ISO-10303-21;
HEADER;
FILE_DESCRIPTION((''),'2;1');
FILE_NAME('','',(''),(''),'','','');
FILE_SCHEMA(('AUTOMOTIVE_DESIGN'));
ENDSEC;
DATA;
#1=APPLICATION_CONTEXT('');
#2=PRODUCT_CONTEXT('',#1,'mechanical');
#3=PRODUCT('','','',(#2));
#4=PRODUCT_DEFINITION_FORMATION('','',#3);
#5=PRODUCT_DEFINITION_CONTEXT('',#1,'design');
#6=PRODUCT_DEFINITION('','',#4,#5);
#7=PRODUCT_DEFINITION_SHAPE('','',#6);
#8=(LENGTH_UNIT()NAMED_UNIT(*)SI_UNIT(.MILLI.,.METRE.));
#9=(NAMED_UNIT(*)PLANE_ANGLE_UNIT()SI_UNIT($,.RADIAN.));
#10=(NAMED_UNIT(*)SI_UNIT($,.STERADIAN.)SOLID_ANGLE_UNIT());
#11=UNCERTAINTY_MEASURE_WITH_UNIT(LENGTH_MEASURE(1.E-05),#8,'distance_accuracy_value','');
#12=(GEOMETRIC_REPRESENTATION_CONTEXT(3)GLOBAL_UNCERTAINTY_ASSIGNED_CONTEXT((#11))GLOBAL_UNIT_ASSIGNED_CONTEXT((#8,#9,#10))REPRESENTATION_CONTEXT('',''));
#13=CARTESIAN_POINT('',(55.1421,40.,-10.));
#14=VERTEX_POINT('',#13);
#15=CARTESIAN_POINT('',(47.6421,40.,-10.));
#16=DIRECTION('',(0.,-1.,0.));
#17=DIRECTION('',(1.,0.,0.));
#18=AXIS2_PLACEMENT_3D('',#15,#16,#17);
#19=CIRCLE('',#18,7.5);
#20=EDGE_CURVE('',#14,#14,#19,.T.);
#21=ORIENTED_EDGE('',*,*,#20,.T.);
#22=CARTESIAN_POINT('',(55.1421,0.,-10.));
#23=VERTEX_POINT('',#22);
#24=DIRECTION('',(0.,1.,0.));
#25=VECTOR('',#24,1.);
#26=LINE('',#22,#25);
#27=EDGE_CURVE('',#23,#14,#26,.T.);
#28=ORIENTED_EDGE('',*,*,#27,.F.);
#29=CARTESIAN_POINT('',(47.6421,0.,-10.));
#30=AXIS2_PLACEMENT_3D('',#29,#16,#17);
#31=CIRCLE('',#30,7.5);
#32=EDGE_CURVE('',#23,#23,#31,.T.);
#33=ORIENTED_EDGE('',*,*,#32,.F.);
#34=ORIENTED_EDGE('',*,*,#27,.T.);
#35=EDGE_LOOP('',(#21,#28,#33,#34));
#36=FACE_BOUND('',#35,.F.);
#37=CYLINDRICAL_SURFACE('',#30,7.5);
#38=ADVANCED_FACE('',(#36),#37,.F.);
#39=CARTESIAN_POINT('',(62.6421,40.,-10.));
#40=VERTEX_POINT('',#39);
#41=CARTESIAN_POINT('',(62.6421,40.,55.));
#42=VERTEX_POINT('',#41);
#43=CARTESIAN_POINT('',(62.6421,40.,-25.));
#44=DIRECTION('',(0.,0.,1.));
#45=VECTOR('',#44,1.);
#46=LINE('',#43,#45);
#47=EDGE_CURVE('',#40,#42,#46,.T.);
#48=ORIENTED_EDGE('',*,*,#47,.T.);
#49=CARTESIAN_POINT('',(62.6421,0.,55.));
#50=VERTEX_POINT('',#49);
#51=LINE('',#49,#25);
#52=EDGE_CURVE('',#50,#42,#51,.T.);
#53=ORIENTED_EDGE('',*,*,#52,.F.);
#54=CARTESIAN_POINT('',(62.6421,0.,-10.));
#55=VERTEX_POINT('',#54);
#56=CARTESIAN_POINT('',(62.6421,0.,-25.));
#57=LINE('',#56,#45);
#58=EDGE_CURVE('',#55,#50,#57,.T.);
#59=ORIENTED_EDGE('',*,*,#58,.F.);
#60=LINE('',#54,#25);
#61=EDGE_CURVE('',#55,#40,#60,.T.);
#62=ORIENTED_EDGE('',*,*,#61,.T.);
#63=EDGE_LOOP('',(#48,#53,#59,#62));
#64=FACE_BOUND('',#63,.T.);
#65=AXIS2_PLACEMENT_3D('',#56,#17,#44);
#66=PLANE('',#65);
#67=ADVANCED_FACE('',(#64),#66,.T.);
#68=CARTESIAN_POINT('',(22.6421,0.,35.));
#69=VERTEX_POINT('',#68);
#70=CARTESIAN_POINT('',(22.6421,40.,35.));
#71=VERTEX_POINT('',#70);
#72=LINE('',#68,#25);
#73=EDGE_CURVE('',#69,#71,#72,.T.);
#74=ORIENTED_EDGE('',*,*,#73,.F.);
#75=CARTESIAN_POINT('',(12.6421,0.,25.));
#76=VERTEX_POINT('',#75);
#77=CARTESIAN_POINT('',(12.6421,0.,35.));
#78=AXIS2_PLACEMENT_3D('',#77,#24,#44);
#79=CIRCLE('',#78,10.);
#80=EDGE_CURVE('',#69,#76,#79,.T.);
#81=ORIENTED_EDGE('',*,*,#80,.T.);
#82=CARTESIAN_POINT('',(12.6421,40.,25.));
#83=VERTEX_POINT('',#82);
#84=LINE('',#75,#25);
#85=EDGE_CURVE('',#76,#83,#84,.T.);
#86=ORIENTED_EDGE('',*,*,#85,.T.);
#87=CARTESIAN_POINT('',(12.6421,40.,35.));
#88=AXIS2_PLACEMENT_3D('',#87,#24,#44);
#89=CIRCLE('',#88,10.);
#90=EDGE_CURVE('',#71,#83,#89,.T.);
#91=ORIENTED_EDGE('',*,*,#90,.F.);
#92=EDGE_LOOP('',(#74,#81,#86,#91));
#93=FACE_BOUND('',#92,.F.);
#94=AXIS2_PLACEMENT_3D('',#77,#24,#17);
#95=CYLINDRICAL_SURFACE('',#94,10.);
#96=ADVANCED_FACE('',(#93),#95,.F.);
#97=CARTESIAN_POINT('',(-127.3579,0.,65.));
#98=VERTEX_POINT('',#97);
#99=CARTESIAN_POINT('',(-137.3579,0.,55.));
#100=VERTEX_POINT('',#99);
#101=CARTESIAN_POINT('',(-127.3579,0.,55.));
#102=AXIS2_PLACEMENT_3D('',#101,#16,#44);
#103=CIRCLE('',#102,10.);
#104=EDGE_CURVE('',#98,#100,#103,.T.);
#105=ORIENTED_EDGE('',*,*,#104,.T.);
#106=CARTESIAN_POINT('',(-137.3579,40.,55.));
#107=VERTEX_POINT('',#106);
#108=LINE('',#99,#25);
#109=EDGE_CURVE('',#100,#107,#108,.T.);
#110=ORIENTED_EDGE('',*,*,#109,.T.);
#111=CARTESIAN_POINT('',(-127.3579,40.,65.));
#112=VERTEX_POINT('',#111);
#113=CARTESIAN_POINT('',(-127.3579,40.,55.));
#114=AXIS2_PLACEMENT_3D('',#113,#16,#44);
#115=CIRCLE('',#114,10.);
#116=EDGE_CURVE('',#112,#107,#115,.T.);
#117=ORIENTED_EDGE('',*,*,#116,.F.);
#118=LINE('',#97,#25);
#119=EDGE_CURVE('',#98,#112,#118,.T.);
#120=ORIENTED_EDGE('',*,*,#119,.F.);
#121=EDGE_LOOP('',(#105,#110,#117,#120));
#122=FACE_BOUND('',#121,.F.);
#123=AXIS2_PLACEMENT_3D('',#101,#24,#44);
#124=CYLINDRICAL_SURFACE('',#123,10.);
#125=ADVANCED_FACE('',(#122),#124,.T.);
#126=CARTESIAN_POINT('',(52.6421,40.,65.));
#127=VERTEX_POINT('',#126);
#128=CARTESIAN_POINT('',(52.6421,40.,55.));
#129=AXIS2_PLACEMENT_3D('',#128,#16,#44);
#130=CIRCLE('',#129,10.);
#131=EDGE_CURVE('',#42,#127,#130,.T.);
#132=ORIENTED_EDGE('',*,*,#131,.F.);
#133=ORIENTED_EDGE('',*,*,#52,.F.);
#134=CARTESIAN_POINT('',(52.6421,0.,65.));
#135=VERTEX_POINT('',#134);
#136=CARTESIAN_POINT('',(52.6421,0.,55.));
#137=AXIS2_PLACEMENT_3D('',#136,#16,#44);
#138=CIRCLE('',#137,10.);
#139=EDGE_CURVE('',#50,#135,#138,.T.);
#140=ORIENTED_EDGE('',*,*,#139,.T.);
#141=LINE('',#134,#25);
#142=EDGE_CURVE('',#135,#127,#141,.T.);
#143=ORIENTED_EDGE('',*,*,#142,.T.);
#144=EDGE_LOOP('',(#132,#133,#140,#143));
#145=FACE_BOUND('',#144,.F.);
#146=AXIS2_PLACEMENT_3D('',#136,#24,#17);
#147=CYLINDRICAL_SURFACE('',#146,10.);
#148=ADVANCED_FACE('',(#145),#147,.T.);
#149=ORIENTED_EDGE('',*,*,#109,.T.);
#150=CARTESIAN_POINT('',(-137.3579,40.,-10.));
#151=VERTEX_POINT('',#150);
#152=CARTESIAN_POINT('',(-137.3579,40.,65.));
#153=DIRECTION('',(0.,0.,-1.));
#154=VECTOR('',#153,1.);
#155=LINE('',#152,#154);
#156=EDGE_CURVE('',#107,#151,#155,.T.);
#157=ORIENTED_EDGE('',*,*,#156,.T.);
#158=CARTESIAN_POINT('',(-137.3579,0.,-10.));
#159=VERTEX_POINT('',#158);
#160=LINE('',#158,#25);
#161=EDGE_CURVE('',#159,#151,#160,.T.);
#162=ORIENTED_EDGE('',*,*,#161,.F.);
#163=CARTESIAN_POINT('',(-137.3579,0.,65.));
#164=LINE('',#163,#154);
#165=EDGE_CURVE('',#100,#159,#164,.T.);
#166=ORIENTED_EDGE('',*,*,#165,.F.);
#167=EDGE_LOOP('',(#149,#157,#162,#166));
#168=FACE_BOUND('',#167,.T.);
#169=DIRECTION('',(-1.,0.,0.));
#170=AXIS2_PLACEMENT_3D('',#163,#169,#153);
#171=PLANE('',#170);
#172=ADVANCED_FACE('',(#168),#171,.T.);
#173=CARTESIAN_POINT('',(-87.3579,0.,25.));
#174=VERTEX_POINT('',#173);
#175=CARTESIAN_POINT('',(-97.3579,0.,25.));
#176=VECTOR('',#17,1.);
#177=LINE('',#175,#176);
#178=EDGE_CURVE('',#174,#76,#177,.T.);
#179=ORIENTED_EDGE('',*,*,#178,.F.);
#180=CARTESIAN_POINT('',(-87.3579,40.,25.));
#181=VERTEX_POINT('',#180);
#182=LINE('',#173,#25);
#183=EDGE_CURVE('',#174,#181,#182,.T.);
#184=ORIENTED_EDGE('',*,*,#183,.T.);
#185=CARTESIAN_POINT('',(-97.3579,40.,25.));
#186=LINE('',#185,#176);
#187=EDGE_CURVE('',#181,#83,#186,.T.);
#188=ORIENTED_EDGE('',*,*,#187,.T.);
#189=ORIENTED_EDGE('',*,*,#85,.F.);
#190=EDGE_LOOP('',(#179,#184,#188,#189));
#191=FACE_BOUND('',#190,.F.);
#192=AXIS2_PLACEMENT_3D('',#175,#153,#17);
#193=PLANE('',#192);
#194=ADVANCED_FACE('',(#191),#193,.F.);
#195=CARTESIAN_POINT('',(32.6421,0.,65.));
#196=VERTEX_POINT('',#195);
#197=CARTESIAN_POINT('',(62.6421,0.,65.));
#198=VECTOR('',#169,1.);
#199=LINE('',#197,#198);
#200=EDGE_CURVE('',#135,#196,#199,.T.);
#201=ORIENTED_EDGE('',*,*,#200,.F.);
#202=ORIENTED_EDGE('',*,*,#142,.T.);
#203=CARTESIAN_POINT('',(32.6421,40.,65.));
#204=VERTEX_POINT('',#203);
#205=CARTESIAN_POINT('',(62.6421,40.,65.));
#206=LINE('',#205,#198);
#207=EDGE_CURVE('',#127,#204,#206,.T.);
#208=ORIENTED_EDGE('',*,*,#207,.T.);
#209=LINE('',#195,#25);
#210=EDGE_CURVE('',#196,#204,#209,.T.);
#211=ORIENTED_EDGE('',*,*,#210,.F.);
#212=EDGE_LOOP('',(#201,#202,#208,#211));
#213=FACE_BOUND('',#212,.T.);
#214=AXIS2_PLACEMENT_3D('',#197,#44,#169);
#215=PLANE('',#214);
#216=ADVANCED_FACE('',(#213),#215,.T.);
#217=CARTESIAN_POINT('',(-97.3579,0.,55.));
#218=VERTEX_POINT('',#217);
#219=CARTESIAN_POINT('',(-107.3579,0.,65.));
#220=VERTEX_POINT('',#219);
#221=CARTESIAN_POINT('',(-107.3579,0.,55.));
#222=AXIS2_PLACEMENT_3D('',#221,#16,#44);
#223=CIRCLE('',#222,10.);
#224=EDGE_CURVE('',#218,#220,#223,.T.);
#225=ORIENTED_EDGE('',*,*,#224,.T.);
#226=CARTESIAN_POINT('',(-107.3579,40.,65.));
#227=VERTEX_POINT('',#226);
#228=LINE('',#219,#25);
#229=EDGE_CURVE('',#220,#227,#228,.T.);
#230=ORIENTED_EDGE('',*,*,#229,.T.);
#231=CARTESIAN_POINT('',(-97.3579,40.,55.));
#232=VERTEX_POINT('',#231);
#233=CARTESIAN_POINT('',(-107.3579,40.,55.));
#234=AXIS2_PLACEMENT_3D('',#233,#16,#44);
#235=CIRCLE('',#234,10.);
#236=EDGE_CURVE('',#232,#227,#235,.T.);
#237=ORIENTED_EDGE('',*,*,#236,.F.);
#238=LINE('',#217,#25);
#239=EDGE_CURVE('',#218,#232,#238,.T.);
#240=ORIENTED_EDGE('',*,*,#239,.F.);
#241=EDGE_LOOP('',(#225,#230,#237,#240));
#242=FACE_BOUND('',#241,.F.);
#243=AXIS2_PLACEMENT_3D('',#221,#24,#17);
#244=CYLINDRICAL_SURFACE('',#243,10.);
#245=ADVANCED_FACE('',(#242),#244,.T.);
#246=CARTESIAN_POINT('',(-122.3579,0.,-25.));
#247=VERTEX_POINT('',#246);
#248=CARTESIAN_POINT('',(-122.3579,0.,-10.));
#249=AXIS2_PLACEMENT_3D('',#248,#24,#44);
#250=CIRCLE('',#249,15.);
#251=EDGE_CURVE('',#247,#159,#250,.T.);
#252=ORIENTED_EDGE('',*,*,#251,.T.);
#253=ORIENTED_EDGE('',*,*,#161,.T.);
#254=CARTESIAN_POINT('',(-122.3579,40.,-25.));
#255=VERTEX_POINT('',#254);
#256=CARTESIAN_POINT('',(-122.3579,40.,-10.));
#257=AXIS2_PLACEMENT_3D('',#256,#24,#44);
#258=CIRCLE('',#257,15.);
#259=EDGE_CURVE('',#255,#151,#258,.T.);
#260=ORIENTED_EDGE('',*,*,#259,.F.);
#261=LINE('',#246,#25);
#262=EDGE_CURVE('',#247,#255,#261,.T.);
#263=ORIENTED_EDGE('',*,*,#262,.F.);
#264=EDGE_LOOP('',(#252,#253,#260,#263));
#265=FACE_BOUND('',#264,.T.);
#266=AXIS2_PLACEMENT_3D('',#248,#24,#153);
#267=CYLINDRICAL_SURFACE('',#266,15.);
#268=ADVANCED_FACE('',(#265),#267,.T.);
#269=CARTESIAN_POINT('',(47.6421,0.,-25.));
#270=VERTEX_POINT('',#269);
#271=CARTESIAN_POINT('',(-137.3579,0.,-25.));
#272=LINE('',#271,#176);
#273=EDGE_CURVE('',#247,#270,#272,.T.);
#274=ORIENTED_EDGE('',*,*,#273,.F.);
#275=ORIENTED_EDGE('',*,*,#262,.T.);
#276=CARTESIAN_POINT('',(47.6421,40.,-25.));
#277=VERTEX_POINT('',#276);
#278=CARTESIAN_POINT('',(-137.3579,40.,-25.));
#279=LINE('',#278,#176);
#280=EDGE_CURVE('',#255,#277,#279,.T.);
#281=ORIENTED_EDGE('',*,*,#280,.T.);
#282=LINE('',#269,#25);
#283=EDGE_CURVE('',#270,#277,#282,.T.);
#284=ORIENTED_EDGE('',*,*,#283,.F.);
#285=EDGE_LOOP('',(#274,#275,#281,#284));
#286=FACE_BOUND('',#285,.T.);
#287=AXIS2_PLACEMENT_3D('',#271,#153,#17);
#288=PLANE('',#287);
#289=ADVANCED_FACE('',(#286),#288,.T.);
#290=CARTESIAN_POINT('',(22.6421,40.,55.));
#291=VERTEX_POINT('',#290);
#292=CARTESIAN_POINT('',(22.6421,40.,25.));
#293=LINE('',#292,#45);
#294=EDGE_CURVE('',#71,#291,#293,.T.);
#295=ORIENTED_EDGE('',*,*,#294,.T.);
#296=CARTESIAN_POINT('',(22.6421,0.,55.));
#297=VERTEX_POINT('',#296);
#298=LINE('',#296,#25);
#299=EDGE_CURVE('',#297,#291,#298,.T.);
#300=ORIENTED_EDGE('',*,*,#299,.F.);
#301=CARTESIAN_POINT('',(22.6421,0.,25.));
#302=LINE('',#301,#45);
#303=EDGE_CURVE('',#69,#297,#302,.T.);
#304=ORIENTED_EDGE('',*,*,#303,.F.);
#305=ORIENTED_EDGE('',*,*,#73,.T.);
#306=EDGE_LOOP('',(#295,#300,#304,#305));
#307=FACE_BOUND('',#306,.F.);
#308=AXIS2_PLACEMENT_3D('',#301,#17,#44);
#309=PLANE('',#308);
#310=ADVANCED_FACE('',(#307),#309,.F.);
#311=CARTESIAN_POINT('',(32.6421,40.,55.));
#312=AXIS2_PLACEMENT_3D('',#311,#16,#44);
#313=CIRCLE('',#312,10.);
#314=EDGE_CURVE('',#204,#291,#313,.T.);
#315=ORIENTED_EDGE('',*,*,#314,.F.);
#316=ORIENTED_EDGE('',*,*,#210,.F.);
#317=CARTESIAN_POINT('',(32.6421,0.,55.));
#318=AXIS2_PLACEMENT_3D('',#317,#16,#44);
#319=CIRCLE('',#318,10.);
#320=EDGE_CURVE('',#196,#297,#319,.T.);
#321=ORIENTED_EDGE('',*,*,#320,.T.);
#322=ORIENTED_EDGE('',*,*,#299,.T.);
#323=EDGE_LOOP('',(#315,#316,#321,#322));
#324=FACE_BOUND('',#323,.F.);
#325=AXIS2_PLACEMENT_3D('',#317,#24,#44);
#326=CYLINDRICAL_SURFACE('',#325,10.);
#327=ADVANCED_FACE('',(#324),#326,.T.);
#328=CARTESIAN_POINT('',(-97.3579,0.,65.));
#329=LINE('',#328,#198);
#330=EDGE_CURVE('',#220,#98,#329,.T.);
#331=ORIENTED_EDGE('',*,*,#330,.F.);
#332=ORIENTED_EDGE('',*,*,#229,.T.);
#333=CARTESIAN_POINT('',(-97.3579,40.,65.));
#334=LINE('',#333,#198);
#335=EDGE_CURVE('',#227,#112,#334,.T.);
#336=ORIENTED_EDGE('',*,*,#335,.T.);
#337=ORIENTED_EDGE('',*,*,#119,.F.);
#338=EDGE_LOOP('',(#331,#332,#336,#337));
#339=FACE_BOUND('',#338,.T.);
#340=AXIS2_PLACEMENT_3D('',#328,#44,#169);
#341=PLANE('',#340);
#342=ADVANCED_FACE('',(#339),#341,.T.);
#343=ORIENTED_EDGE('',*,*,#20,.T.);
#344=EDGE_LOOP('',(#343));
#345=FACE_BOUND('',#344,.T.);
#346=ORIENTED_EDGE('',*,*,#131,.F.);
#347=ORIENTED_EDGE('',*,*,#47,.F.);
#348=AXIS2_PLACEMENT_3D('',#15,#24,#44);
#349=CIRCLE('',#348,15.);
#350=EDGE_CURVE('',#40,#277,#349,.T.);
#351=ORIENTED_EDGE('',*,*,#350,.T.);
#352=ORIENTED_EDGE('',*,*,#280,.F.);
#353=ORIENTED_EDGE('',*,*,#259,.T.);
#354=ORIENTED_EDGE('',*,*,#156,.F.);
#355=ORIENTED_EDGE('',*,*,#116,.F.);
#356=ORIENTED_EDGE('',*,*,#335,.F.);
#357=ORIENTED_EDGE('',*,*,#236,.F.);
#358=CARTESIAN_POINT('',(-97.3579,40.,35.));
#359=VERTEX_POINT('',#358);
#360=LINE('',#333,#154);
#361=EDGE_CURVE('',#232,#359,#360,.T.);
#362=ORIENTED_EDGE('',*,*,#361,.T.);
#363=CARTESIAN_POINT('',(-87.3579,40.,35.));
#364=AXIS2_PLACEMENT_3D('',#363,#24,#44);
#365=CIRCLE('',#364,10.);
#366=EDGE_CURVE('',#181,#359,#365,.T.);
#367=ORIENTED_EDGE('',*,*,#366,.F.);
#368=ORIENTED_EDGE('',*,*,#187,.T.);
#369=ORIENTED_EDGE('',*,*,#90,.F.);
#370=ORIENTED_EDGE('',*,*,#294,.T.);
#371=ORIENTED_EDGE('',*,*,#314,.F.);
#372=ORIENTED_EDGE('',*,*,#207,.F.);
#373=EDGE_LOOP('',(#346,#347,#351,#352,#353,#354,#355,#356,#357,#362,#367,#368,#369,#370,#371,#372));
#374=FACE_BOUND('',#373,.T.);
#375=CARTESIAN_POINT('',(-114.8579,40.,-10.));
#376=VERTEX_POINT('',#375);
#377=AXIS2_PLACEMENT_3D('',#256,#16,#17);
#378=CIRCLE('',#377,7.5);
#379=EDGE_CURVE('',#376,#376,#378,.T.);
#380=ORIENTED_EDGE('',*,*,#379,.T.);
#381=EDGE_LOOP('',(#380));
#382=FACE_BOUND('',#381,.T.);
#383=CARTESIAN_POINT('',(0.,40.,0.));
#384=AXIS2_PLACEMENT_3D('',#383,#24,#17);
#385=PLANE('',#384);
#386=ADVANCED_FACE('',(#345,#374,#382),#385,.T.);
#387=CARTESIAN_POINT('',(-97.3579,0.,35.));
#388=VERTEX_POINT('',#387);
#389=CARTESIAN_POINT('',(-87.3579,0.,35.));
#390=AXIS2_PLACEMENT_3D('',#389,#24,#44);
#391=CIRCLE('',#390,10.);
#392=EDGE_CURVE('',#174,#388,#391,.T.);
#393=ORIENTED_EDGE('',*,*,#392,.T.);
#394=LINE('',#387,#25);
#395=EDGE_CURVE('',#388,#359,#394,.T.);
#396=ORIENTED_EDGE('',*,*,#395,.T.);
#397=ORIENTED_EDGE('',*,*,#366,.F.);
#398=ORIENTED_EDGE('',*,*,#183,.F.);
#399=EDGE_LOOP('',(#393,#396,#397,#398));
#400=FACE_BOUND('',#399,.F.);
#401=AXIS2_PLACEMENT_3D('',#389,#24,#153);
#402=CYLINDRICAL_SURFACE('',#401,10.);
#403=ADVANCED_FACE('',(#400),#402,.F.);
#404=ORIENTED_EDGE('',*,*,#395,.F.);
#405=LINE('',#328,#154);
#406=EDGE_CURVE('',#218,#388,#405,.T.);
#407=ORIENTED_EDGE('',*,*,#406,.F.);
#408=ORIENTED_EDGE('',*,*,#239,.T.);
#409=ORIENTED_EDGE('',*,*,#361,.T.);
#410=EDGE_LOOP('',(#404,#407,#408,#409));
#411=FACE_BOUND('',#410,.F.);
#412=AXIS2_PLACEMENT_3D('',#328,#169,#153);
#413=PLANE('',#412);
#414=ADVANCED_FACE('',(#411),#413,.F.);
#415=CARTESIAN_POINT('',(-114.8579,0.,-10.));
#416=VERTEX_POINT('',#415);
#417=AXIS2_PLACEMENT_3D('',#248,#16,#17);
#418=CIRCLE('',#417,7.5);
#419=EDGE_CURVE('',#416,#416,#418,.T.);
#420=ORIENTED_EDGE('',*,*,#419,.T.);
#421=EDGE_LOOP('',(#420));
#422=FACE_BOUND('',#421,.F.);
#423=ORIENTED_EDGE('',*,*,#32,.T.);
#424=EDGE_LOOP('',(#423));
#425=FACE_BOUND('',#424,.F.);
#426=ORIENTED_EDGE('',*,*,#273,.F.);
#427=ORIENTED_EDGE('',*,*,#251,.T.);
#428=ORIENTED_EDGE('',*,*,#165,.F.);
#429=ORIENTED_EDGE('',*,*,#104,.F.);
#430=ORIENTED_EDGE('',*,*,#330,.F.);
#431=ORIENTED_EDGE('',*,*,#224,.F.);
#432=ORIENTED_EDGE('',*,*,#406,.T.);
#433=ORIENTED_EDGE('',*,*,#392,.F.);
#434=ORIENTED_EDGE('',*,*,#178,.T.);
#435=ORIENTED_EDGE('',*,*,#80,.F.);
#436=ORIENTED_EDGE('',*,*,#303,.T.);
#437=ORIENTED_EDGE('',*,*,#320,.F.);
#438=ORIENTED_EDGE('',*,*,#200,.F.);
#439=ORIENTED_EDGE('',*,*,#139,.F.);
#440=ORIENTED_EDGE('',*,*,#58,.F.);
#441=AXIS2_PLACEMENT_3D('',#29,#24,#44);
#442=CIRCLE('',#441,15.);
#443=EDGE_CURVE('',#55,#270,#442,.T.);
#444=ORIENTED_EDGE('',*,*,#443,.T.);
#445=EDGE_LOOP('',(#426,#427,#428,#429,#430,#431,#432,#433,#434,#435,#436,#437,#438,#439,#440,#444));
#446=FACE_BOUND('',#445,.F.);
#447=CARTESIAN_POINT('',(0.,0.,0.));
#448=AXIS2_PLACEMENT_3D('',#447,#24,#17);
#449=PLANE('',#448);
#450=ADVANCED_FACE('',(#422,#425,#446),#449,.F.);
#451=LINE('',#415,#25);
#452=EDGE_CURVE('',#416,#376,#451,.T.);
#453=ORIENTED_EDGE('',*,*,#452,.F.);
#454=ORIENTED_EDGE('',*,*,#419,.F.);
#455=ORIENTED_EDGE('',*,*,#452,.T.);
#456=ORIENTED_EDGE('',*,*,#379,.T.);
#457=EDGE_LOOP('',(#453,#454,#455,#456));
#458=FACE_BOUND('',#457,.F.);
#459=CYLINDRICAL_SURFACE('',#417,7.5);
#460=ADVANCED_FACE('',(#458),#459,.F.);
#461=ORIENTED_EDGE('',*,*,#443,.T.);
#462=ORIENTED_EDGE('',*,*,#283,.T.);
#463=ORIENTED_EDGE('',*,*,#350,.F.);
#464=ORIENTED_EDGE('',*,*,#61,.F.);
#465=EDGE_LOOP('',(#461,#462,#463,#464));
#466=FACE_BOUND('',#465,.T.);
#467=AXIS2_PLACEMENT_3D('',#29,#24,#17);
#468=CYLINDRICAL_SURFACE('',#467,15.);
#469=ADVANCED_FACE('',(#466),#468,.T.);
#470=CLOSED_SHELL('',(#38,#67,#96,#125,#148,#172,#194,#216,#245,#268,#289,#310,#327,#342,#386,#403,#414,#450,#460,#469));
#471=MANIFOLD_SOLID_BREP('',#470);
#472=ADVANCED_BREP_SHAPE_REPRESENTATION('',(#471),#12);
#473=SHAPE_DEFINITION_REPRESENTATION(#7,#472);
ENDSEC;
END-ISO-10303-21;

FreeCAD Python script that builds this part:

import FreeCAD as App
import Part
import Sketcher

V = App.Vector
Q = App.Units.Quantity


def edges_at(feature, points):
    """Names of the edges that pass closest to the given points."""
    edges = feature.Shape.Edges
    near = lambda p: min(range(len(edges)), key=lambda i: edges[i].distToShape(Part.Vertex(*p))[0])
    return sorted({f"Edge{near(p) + 1}" for p in points})


def add_polygon(sketch, points):
    """Adds a closed chain of lines whose ends are joined by coincident constraints."""
    first, n = sketch.GeometryCount, len(points)
    for a, b in zip(points, points[1:] + points[:1]):
        sketch.addGeometry(Part.LineSegment(App.Vector(*a, 0), App.Vector(*b, 0)), False)
    for i in range(n):
        sketch.addConstraint(Sketcher.Constraint("Coincident", first + i, 2, first + (i + 1) % n, 1))

doc = App.newDocument("Part")
body = doc.addObject("PartDesign::Body", "Body")

sketch1 = body.newObject("Sketcher::SketchObject", "Sketch")
sketch1.AttachmentSupport = (doc.getObject("XZ_Plane"), [""])
sketch1.MapMode = "FlatFace"
add_polygon(sketch1, [(62.6421, -25), (-137.3579, -25), (-137.3579, 65), (-97.3579, 65), (-97.3579, 25), (22.6421, 25), (22.6421, 65), (62.6421, 65)])
sketch1.addConstraint(Sketcher.Constraint("Horizontal", 0))
sketch1.addConstraint(Sketcher.Constraint("Vertical", 1))
sketch1.addConstraint(Sketcher.Constraint("Horizontal", 2))
sketch1.addConstraint(Sketcher.Constraint("Vertical", 3))
sketch1.addConstraint(Sketcher.Constraint("Horizontal", 4))
sketch1.addConstraint(Sketcher.Constraint("Vertical", 5))
sketch1.addConstraint(Sketcher.Constraint("Horizontal", 6))
sketch1.addConstraint(Sketcher.Constraint("Vertical", 7))
sketch1.addConstraint(Sketcher.Constraint("Horizontal", 2, 2, 5, 2))
sketch1.addConstraint(Sketcher.Constraint("Equal", 2, 6))
sketch1.addConstraint(Sketcher.Constraint("Equal", 6, 3))
sketch1.addConstraint(Sketcher.Constraint("DistanceX", 0, 2, 0, 1, Q("200 mm")))
sketch1.addConstraint(Sketcher.Constraint("DistanceY", 1, 1, 1, 2, Q("90 mm")))
sketch1.addConstraint(Sketcher.Constraint("DistanceY", 0, 2, 3, 2, Q("50 mm")))
sketch1.addConstraint(Sketcher.Constraint("DistanceY", 0, 2, -1, 1, Q("25 mm")))
sketch1.addConstraint(Sketcher.Constraint("DistanceX", 0, 2, -1, 1, Q("137.358 mm")))
pad1 = body.newObject("PartDesign::Pad", "Pad")
pad1.Profile = sketch1
pad1.Length = 40
pad1.Reversed = True
doc.recompute()

fillet = body.newObject("PartDesign::Fillet", "Fillet")
fillet.Base = (pad1, edges_at(pad1, [
    (-137.358, 20, 65),
    (-97.358, 20, 65),
    (-97.358, 20, 25),
    (22.642, 20, 25),
    (22.642, 20, 65),
    (62.642, 20, 65),
]))
fillet.Radius = 10
doc.recompute()

fillet2 = body.newObject("PartDesign::Fillet", "Fillet001")
fillet2.Base = (fillet, edges_at(fillet, [(-137.358, 20, -25), (62.642, 20, -25)]))
fillet2.Radius = 15

sketch2 = body.newObject("Sketcher::SketchObject", "Sketch001")
sketch2.AttachmentSupport = (doc.getObject("XZ_Plane"), [""])
sketch2.MapMode = "FlatFace"
sketch2.addGeometry(Part.Circle(V(-122.3579, -10, 0), V(0, 0, 1), 7.5), False)
sketch2.addGeometry(Part.Circle(V(47.6421, -10, 0), V(0, 0, 1), 7.5), False)
sketch2.addConstraint(Sketcher.Constraint("Equal", 0, 1))
sketch2.addConstraint(Sketcher.Constraint("Horizontal", 0, 3, 1, 3))
sketch2.addConstraint(Sketcher.Constraint("Diameter", 0, Q("15 mm")))
sketch2.addConstraint(Sketcher.Constraint("DistanceY", 0, 3, -1, 1, Q("10 mm")))
sketch2.addConstraint(Sketcher.Constraint("DistanceX", 0, 3, 1, 3, Q("170 mm")))
sketch2.addConstraint(Sketcher.Constraint("DistanceX", 0, 3, -1, 1, Q("122.358 mm")))
pocket1 = body.newObject("PartDesign::Pocket", "Pocket")
pocket1.Profile = sketch2
pocket1.Length = 40

doc.recompute()
